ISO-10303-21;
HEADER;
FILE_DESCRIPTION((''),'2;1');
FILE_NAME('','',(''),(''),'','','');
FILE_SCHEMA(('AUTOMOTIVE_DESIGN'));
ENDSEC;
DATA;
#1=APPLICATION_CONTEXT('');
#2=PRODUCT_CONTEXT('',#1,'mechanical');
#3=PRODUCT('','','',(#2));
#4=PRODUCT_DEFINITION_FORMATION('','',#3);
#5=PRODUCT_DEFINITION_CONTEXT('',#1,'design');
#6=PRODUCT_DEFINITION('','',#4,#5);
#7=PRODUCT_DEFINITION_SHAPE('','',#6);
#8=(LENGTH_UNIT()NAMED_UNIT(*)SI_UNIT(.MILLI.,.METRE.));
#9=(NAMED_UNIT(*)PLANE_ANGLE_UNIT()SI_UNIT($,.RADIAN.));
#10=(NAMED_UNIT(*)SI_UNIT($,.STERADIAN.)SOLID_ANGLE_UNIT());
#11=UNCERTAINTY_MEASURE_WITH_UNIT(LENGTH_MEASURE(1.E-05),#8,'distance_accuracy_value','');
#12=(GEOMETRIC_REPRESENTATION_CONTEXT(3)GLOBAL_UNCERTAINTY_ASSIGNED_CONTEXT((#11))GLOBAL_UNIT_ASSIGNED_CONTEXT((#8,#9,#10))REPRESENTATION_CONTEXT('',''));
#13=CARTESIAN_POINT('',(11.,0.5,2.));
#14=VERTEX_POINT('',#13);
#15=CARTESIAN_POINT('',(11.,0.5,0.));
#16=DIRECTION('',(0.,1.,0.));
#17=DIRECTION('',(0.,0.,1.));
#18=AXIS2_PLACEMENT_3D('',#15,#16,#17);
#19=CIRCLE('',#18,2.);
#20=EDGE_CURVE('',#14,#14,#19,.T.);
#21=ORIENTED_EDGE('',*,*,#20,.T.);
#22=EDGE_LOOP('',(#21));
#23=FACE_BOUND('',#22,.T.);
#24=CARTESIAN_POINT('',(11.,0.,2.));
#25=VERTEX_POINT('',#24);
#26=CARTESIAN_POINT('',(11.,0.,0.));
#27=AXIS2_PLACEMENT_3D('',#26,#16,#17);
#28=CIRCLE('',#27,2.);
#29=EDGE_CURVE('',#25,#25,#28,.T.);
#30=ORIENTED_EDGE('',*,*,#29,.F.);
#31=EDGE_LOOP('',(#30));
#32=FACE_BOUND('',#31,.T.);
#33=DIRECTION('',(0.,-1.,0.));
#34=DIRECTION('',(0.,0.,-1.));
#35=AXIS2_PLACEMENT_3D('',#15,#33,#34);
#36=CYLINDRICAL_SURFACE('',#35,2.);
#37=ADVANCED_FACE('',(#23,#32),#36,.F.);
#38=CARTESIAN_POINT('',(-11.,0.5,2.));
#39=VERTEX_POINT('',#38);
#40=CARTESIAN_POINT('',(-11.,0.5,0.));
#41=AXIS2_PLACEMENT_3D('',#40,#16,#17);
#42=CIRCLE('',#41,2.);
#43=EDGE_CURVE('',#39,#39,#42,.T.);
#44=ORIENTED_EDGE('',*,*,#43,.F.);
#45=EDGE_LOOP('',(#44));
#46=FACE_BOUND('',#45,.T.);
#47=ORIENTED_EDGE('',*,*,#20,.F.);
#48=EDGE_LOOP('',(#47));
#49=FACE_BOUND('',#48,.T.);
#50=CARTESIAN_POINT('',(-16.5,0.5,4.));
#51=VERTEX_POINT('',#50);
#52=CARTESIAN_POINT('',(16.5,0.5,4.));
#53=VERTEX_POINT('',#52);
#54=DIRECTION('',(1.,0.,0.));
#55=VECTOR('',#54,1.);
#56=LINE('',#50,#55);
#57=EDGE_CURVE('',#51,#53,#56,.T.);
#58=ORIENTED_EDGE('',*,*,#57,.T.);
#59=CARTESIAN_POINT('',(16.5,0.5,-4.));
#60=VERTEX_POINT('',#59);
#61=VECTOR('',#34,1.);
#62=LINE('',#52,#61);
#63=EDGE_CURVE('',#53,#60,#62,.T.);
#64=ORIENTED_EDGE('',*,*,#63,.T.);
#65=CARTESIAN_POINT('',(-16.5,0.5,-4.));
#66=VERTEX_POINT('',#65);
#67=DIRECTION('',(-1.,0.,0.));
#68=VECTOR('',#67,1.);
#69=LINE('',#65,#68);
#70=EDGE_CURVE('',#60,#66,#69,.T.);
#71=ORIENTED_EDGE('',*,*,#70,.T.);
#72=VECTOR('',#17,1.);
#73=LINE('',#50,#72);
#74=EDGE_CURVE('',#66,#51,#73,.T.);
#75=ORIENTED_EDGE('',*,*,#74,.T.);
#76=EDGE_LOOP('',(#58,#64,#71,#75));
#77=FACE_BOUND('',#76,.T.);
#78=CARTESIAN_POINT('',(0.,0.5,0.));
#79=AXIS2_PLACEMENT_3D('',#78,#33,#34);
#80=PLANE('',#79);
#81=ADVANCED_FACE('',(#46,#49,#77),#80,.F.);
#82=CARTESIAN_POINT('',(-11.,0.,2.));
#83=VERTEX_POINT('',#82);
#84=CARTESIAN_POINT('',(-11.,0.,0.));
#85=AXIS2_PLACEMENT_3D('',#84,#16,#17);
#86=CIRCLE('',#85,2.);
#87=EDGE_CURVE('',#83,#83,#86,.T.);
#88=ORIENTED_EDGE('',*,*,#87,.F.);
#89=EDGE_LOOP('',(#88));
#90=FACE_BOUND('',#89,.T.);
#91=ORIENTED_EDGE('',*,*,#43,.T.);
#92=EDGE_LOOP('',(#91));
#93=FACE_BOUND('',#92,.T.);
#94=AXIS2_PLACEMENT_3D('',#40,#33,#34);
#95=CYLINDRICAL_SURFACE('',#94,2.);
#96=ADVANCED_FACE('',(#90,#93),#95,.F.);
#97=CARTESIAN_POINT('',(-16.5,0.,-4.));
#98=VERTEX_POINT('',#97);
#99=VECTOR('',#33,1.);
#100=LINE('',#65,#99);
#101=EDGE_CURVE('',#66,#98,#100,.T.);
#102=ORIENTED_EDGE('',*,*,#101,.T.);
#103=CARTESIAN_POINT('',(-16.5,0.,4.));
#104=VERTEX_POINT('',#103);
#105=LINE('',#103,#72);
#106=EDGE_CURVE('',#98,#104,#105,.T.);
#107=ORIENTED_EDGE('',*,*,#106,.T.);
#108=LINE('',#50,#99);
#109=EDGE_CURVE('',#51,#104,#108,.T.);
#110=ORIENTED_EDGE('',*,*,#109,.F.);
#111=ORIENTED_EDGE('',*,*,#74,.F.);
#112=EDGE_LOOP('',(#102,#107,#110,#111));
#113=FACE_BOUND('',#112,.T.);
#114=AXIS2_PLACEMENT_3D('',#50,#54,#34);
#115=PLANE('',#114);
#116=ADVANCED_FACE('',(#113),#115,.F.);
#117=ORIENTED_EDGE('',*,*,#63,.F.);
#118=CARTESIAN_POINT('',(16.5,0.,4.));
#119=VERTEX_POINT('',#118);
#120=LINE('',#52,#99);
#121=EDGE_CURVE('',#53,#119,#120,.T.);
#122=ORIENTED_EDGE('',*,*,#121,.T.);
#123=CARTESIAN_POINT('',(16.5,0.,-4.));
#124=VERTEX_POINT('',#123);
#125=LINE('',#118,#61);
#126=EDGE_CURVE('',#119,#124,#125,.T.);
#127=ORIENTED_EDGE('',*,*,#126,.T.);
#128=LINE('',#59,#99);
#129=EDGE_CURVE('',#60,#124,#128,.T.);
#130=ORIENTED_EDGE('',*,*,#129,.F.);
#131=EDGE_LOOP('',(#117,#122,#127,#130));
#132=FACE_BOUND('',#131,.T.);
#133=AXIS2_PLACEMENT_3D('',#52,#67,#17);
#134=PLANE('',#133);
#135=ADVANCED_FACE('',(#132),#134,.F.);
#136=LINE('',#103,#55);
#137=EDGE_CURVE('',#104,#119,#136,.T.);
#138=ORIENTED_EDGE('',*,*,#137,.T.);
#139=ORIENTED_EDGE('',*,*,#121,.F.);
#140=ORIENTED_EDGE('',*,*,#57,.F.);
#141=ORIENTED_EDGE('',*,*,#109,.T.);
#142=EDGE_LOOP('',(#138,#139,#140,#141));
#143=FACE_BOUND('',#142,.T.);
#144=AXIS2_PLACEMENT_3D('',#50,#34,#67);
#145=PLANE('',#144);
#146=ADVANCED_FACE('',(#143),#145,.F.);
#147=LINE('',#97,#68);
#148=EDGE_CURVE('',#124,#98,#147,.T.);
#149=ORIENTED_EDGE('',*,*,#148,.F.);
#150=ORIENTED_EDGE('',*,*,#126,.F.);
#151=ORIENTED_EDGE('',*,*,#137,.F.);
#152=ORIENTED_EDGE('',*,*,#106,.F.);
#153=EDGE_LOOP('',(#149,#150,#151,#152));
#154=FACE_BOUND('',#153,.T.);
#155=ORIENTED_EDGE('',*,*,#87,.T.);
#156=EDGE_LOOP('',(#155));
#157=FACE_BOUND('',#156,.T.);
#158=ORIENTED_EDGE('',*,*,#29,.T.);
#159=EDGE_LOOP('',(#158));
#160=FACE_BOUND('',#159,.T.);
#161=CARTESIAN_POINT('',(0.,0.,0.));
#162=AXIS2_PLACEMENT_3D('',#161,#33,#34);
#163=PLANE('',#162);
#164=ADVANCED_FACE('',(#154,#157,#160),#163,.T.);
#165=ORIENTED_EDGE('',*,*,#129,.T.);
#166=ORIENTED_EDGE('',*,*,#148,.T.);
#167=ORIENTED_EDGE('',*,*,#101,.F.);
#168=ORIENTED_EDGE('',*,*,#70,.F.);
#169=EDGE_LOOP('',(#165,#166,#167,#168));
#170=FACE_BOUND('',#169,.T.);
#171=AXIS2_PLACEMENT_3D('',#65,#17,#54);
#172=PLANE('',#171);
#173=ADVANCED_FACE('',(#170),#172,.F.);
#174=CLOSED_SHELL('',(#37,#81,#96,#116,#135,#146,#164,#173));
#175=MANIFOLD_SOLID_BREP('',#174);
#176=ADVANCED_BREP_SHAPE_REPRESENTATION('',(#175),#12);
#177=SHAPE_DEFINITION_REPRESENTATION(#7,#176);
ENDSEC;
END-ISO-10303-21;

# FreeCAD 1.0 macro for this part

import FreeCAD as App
import Part
import Sketcher
from FreeCAD import Vector
Q = App.Units.Quantity


def add_polygon(sketch, points):
    """Adds a closed chain of lines whose ends are joined by coincident constraints."""
    first, n = sketch.GeometryCount, len(points)
    for a, b in zip(points, points[1:] + points[:1]):
        sketch.addGeometry(Part.LineSegment(App.Vector(*a, 0), App.Vector(*b, 0)), False)
    for i in range(n):
        sketch.addConstraint(Sketcher.Constraint("Coincident", first + i, 2, first + (i + 1) % n, 1))

doc = App.newDocument("Part")
body = doc.addObject("PartDesign::Body", "Body")

# Sketch on XZ plane
sketch1 = doc.addObject("Sketcher::SketchObject", "Sketch")
body.addObject(sketch1)
sketch1.AttachmentSupport = (doc.XZ_Plane, [""])
sketch1.MapMode = "FlatFace"
add_polygon(sketch1, [(-16.5, -4), (-16.5, 4), (16.5, 4), (16.5, -4)])  # lines 0-3
sketch1.addGeometry(Part.Circle(Vector(-11, 0, 0), Vector(0, 0, 1), 2), False)  # 4
sketch1.addGeometry(Part.Circle(Vector(11, 0, 0), Vector(0, 0, 1), 2), False)  # 5
sketch1.addConstraint(Sketcher.Constraint("Vertical", 0))
sketch1.addConstraint(Sketcher.Constraint("Horizontal", 1))
sketch1.addConstraint(Sketcher.Constraint("Vertical", 2))
sketch1.addConstraint(Sketcher.Constraint("Horizontal", 3))
sketch1.addConstraint(Sketcher.Constraint("Equal", 4, 5))
sketch1.addConstraint(Sketcher.Constraint("Symmetric", 4, 3, 5, 3, -1, 1))
sketch1.addConstraint(Sketcher.Constraint("Symmetric", 0, 2, 2, 2, -1, 1))
sketch1.addConstraint(Sketcher.Constraint("PointOnObject", 4, 3, -1))
sketch1.addConstraint(Sketcher.Constraint("Diameter", 4, Q("4 mm")))
sketch1.addConstraint(Sketcher.Constraint("DistanceX", 1, 1, 1, 2, Q("33 mm")))
sketch1.addConstraint(Sketcher.Constraint("DistanceY", 0, 1, 0, 2, Q("8 mm")))
sketch1.addConstraint(Sketcher.Constraint("DistanceX", 4, 3, -1, 1, Q("11 mm")))
pad1 = doc.addObject("PartDesign::Pad", "Pad")
body.addObject(pad1)
pad1.Profile = sketch1
pad1.Length = 0.5
pad1.Reversed = True

doc.recompute()
